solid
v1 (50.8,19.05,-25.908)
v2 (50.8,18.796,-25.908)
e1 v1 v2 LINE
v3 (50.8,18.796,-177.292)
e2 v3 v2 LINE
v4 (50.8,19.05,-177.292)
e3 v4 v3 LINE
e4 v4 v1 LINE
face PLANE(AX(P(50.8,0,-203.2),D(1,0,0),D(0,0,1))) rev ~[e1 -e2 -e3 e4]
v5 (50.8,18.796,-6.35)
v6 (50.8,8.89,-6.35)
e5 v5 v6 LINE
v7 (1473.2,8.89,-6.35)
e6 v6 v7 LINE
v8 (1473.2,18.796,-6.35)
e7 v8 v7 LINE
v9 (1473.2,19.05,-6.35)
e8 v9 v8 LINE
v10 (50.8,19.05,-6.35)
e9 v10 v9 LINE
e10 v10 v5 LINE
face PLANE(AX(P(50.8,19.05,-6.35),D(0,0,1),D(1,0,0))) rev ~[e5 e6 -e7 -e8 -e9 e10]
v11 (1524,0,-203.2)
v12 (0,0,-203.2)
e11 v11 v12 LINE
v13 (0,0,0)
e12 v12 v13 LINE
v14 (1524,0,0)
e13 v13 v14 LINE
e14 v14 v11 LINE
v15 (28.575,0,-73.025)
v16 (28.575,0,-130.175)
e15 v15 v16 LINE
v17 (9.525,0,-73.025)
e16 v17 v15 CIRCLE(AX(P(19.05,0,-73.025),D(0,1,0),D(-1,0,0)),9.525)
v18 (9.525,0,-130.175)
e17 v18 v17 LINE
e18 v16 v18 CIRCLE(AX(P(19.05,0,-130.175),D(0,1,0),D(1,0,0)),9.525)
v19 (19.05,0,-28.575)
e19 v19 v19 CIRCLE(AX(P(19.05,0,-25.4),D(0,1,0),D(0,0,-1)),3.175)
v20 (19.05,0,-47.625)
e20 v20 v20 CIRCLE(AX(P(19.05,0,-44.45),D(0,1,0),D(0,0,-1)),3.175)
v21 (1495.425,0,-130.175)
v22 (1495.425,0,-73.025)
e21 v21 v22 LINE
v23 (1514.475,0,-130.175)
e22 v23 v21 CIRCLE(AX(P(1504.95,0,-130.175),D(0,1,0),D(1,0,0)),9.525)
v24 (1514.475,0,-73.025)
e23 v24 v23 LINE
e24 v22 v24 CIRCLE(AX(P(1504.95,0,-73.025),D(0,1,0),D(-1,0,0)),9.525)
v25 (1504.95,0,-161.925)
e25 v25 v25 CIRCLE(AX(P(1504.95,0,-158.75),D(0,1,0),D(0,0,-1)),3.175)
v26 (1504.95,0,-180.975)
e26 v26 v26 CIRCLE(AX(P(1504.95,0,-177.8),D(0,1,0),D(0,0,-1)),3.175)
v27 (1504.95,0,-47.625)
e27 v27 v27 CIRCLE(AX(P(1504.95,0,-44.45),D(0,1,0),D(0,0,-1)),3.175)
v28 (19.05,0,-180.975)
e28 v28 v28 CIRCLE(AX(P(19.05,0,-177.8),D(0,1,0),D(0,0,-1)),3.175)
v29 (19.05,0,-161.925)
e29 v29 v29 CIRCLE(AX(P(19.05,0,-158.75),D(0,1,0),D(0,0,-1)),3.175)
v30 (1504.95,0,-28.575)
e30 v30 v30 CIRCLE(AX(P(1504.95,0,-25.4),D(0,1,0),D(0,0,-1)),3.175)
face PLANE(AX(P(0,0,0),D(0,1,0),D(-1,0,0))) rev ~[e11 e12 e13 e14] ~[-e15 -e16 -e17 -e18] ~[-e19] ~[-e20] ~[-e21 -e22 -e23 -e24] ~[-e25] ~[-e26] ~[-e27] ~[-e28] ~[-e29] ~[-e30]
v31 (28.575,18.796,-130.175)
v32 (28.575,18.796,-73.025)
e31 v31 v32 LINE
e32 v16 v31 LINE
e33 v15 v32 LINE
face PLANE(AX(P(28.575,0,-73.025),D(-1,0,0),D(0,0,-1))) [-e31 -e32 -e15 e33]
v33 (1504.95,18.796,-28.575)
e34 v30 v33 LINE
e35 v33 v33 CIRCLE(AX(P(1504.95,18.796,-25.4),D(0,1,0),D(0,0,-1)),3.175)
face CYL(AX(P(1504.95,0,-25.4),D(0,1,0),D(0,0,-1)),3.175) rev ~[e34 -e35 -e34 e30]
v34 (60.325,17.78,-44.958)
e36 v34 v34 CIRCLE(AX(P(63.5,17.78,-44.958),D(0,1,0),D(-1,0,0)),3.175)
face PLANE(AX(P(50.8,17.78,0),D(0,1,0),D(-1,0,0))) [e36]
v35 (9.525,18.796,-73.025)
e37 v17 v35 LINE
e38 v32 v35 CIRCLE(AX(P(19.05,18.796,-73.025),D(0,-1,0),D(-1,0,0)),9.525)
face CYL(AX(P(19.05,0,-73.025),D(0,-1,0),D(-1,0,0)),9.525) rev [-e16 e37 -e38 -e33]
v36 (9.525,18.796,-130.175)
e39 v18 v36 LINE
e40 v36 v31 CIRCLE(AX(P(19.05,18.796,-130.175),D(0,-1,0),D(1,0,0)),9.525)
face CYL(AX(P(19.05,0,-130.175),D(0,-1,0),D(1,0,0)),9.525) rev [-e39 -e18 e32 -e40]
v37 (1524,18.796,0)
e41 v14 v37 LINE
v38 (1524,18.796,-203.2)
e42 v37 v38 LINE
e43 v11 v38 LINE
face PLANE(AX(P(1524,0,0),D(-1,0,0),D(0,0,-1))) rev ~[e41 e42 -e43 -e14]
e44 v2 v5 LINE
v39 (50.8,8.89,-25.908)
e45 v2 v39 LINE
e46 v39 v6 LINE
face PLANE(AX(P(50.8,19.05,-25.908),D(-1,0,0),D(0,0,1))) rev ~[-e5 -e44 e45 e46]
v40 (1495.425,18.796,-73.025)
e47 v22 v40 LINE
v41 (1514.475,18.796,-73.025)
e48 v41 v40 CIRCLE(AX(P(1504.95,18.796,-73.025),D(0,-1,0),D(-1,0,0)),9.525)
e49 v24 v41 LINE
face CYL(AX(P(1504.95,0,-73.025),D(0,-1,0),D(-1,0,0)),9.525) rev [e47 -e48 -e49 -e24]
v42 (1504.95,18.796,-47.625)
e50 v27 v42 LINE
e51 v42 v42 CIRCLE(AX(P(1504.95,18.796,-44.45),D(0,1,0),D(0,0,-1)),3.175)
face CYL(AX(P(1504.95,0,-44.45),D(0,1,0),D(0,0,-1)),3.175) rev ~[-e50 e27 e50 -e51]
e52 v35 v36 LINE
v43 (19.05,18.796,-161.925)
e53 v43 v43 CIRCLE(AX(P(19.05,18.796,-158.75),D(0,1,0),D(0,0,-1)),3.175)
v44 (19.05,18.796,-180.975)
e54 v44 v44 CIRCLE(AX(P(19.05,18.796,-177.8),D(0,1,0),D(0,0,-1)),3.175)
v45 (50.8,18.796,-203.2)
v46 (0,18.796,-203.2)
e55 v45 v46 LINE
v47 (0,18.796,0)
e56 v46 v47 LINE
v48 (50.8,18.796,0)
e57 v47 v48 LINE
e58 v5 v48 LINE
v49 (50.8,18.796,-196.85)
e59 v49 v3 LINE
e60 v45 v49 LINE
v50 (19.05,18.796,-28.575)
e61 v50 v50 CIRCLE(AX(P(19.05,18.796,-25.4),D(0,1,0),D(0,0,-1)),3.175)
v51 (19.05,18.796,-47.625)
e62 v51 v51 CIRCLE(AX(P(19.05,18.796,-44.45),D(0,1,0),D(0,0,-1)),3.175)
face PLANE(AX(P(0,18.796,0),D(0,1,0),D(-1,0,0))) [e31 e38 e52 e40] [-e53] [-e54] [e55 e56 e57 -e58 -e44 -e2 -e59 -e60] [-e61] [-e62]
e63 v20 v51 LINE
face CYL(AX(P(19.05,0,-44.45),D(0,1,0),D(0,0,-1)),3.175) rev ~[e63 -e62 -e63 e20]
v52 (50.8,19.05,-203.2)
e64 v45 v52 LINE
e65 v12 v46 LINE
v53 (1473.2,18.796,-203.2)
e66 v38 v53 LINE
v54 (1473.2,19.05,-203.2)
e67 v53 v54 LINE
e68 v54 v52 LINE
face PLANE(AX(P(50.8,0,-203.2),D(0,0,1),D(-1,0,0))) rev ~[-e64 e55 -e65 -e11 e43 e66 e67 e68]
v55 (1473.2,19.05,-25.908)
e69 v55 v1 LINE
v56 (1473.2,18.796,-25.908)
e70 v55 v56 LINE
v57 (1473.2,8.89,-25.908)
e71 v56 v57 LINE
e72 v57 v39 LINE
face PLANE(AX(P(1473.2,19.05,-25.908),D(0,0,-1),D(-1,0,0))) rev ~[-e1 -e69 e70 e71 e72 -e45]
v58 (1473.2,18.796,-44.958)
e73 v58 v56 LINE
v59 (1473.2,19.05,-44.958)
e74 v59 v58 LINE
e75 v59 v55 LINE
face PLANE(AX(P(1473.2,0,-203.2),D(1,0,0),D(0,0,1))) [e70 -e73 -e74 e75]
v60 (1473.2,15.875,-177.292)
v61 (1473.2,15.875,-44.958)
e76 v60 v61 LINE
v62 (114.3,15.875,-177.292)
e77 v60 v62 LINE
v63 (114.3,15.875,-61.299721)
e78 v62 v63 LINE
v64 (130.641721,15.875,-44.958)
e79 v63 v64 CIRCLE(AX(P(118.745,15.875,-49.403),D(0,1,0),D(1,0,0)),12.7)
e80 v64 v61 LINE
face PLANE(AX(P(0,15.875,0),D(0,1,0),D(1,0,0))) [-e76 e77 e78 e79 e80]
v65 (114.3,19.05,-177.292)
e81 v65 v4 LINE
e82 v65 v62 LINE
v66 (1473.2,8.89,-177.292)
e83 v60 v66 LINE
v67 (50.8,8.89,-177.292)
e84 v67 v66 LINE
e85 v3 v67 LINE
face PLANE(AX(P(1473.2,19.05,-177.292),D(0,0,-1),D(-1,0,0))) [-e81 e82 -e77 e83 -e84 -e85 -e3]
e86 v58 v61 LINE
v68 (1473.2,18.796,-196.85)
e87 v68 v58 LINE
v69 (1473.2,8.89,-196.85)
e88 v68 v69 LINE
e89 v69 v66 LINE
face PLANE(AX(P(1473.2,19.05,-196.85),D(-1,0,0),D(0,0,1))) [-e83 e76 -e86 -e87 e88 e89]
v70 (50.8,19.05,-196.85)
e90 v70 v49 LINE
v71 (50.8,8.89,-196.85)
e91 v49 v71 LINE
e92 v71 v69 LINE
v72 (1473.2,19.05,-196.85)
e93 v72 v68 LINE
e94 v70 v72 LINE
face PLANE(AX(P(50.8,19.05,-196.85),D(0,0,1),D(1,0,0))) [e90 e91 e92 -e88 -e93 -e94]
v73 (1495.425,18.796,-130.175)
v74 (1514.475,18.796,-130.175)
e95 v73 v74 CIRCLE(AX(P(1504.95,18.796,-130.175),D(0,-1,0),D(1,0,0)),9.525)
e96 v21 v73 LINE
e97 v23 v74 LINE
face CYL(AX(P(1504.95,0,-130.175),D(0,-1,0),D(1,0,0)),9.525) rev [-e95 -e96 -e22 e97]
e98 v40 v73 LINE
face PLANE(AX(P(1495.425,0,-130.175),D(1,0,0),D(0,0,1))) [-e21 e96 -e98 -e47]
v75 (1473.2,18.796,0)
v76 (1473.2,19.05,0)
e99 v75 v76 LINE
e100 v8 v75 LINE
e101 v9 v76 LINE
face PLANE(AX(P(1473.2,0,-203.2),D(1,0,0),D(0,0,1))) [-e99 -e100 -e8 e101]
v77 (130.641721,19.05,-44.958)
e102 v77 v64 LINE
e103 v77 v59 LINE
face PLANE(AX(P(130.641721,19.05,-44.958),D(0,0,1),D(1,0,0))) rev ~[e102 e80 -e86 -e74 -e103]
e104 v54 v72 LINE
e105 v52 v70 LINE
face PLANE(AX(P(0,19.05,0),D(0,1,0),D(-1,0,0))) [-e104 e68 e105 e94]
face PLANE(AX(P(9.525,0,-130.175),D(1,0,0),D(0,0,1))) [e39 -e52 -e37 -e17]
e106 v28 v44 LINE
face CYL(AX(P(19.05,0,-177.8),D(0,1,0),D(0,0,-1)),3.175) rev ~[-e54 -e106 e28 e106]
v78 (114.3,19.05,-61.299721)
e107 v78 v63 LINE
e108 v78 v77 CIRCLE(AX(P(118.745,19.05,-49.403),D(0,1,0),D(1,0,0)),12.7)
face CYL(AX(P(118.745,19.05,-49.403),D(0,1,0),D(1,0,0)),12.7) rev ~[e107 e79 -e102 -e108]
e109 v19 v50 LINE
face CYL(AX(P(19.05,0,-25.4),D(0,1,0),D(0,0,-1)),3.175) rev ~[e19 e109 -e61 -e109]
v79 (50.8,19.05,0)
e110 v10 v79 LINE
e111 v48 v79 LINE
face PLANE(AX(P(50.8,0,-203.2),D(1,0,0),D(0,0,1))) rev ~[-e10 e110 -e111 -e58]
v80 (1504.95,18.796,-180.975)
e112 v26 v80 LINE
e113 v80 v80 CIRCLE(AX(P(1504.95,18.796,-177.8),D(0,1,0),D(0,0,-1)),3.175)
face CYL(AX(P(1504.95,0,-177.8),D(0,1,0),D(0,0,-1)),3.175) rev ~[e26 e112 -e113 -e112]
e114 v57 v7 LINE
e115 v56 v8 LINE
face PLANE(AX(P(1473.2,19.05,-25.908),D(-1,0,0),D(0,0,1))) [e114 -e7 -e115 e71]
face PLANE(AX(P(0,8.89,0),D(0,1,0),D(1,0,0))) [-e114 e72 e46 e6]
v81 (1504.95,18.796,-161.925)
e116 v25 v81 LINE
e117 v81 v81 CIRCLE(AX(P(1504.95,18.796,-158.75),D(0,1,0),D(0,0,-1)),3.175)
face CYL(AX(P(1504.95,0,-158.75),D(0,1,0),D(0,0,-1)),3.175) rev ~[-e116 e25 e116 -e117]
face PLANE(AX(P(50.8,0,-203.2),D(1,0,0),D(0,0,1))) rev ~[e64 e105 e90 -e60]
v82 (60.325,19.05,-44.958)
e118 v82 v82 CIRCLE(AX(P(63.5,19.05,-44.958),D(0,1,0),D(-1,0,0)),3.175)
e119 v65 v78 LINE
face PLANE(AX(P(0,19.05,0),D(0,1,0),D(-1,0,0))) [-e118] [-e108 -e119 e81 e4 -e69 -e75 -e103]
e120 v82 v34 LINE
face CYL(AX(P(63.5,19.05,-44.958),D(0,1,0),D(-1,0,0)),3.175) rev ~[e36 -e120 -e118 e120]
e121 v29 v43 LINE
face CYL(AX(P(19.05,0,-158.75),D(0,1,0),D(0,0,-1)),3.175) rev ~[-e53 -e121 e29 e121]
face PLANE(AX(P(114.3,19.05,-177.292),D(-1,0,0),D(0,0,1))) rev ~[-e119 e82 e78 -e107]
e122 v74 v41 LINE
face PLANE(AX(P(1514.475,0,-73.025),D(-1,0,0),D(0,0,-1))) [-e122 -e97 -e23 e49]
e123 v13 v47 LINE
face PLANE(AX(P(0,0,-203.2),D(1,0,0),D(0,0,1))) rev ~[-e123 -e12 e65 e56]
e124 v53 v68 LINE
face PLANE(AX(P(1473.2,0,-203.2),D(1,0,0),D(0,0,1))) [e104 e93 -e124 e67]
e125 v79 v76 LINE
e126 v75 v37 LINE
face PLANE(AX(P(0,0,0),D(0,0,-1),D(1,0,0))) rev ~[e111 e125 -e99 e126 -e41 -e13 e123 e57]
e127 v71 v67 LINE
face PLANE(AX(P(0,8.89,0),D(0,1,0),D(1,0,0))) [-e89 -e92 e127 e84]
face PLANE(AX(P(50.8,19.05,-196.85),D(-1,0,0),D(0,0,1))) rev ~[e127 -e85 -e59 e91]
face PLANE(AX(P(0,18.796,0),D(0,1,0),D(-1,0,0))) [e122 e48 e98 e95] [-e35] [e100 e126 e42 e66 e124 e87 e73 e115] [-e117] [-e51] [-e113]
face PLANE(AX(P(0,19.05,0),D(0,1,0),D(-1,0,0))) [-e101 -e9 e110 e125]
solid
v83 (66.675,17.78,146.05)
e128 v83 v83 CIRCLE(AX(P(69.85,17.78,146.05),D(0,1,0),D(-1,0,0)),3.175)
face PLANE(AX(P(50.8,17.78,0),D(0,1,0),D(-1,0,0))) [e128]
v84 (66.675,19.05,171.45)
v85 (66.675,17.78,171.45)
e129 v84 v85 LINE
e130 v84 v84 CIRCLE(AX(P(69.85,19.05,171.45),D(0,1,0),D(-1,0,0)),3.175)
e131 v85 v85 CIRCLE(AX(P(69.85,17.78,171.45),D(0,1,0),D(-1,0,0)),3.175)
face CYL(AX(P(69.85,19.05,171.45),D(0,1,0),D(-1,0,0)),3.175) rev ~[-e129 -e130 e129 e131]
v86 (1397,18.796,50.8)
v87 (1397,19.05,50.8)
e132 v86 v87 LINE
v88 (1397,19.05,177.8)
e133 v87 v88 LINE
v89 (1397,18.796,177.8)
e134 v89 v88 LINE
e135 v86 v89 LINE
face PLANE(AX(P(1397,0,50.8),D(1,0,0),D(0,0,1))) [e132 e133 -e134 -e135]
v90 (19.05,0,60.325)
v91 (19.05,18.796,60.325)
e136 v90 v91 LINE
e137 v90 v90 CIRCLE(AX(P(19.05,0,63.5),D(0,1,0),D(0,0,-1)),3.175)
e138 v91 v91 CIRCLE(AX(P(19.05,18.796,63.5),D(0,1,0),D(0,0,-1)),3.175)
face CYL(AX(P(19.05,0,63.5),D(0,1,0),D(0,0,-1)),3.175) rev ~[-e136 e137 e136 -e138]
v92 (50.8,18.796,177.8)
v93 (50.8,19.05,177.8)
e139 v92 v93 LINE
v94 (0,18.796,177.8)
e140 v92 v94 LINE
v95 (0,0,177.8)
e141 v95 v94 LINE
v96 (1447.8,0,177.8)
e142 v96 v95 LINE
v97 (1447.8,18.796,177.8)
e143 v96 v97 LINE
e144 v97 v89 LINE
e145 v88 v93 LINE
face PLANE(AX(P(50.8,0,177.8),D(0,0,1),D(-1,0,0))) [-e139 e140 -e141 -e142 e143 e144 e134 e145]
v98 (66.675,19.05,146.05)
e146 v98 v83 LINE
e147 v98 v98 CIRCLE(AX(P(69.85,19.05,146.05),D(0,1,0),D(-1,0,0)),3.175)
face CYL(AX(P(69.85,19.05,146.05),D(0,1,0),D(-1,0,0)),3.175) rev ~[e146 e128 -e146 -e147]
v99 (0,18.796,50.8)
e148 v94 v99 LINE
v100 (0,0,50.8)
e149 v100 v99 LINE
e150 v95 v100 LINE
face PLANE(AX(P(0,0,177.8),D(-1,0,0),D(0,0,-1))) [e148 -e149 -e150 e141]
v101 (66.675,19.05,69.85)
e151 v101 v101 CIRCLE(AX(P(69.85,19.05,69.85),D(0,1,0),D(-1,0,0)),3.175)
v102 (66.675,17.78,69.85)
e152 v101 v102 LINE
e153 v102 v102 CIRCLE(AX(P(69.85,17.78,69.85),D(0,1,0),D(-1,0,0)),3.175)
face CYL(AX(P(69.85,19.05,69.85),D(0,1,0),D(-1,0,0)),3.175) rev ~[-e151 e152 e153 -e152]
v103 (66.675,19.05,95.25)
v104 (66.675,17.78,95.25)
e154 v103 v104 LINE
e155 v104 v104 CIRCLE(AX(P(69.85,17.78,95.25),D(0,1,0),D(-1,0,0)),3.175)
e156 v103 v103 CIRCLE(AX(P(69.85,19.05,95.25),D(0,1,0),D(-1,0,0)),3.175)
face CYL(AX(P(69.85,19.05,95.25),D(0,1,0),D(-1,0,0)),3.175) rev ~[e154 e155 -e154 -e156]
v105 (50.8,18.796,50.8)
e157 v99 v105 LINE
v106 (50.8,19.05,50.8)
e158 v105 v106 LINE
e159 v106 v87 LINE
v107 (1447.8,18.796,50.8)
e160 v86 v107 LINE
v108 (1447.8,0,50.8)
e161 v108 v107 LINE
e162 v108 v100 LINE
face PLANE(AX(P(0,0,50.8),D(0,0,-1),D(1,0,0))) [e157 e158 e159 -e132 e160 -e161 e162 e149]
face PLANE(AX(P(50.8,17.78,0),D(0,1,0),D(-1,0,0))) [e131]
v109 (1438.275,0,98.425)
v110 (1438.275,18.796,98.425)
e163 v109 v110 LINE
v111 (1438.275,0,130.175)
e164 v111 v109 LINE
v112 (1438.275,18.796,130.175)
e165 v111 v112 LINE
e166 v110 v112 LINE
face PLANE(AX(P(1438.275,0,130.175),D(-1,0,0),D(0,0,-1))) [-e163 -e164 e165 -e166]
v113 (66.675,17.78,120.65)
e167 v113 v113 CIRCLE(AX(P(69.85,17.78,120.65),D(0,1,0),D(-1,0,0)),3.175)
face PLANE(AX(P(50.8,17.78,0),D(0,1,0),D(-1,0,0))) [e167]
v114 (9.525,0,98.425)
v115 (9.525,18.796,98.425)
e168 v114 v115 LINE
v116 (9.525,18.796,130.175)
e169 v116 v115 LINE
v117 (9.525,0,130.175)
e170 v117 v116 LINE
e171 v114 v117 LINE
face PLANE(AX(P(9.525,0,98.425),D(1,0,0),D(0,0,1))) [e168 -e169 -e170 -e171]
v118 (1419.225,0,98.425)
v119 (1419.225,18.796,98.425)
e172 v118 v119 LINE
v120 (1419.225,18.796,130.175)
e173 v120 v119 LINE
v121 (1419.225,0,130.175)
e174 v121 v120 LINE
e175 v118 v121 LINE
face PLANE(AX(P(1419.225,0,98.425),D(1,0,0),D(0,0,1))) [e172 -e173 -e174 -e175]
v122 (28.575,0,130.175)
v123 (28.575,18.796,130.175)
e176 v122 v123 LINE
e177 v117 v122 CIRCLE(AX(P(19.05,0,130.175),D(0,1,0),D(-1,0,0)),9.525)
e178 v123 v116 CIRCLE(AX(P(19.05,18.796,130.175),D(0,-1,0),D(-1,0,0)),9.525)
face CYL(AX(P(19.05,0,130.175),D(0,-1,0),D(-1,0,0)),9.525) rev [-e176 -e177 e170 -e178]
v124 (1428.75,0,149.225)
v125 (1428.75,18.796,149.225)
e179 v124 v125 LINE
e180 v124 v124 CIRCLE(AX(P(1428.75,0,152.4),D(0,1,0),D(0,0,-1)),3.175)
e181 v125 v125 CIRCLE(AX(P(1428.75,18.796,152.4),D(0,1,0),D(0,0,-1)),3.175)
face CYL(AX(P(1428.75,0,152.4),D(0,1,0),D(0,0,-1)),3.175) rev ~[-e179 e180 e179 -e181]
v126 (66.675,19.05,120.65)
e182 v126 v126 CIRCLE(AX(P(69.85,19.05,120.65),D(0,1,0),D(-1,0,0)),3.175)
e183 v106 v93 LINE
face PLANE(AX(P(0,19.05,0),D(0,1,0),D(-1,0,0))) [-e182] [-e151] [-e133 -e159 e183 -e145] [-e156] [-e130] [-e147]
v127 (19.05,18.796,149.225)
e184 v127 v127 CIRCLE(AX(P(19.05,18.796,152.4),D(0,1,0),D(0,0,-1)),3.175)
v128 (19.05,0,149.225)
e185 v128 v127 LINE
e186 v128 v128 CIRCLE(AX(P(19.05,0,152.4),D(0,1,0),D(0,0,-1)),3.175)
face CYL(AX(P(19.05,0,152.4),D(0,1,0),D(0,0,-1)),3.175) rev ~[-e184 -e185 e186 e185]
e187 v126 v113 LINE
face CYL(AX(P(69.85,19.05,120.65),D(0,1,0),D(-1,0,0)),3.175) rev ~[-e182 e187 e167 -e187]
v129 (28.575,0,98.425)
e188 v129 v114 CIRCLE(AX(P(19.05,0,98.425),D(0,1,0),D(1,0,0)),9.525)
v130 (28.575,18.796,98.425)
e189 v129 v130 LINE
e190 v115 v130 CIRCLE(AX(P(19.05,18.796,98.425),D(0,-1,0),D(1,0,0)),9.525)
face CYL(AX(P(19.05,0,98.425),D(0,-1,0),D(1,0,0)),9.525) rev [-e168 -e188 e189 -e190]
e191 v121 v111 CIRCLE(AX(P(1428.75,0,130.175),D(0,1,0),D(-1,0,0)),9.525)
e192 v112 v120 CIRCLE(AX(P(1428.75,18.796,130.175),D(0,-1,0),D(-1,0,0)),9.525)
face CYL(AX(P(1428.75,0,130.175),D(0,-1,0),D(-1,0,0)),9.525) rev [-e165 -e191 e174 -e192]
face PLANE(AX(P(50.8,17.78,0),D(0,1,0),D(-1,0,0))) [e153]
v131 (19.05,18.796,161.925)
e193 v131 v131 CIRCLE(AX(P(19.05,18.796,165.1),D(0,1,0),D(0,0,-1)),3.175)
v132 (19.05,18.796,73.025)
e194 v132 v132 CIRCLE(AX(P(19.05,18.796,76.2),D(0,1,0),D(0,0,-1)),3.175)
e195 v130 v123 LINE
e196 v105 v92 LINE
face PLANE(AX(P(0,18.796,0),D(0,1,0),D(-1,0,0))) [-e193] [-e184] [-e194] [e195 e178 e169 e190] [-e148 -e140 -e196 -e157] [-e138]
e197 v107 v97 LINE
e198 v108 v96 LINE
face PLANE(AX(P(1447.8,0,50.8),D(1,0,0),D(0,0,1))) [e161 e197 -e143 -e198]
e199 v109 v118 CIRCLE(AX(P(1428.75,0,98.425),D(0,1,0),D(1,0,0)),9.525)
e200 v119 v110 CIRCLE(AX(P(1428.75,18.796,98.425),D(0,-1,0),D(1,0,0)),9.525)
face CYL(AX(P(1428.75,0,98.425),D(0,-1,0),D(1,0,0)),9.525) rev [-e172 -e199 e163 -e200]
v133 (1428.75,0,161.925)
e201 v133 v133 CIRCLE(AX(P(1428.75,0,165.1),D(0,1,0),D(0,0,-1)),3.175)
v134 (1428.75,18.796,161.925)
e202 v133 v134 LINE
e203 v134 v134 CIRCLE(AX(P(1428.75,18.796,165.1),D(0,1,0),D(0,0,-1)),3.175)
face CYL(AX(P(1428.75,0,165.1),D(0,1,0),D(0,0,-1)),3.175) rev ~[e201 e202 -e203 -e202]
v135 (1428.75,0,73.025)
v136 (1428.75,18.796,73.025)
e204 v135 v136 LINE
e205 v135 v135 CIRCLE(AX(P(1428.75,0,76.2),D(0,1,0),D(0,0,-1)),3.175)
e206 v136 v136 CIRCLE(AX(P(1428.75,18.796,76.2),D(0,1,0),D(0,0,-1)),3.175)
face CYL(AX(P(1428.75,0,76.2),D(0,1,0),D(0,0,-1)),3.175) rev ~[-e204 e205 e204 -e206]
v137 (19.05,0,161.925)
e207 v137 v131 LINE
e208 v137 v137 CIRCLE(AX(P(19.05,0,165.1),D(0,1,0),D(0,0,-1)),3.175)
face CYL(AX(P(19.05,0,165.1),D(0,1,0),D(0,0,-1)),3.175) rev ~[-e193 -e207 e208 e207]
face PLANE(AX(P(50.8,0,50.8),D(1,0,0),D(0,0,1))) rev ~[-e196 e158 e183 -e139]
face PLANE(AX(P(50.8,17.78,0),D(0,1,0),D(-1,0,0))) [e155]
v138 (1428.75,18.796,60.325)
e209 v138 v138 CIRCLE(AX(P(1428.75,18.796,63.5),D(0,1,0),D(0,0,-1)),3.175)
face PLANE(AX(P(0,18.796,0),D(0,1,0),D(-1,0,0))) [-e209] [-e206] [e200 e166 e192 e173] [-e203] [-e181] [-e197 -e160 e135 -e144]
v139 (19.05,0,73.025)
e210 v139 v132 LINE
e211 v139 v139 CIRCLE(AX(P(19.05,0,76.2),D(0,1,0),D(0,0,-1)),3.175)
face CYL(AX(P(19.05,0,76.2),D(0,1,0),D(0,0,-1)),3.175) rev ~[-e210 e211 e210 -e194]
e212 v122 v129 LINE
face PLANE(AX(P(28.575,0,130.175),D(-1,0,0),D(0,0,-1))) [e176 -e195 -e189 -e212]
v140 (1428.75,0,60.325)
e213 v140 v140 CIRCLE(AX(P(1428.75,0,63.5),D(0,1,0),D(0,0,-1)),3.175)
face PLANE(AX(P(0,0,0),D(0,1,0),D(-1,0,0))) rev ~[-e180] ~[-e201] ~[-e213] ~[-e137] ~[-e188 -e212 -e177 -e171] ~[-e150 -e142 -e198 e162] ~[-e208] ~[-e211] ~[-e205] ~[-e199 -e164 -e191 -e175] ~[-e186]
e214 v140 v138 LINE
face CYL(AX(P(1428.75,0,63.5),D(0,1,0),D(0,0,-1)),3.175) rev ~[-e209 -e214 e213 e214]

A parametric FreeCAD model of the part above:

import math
import FreeCAD as App
import Part
import Sketcher

V = App.Vector
Q = App.Units.Quantity


def add_polygon(sketch, points):
    """Adds a closed chain of lines whose ends are joined by coincident constraints."""
    first, n = sketch.GeometryCount, len(points)
    for a, b in zip(points, points[1:] + points[:1]):
        sketch.addGeometry(Part.LineSegment(App.Vector(*a, 0), App.Vector(*b, 0)), False)
    for i in range(n):
        sketch.addConstraint(Sketcher.Constraint("Coincident", first + i, 2, first + (i + 1) % n, 1))

doc = App.newDocument("Part")
params = doc.addObject("Spreadsheet::Sheet", "Params")
for row, (alias, value) in enumerate([
    ("sketch1_width", "2 in"),
    ("sketch1_height", "8 in"),
    ("sketch1_height2", "5 in"),
    ("pad1_length", "0.74 in"),
    ("sketch2_height", "8 in"),
    ("sketch2_height2", "5 in"),
    ("sketch2_width", "56 in"),
    ("sketch2_width2", "53 in"),
    ("pad2_length", "0.75 in"),
    ("sketch3_radius", "0.375 in"),
    ("sketch3_height", "2.25 in"),
    ("sketch4_diameter", "0.25 in"),
    ("hole_diameter", "0.25 in"),
    ("sketch5_radius", "0.5 in"),
    ("sketch5_width", "53.5 in"),
    ("sketch5_height", "0.175 in"),
    ("sketch5_height2", "5.21 in"),
    ("pocket2_length", "0.125 in"),
    ("sketch6_height", "0.77 in"),
    ("sketch6_width", "56 in"),
    ("pocket3_length", "0.4 in"),
    ("sketch7_diameter", "0.25 in"),
    ("pocket4_length", "0.05 in"),
], start=1):
    params.set(f"A{row}", alias)
    params.set(f"B{row}", "=" + value)
    params.setAlias(f"B{row}", alias)

body = doc.addObject("PartDesign::Body", "Body")
body.AllowCompound = True

sketch1 = body.newObject("Sketcher::SketchObject", "Sketch")
sketch1.AttachmentSupport = (doc.getObject("XZ_Plane"), [""])
sketch1.MapMode = "FlatFace"
add_polygon(sketch1, [(0, -203), (0, 0), (51, 0), (51, -203)])
add_polygon(sketch1, [(1473, -203), (1473, 0), (1524, 0), (1524, -203)])
add_polygon(sketch1, [(51, 51), (0, 51), (0, 178), (51, 178)])
add_polygon(sketch1, [(1448, 51), (1397, 51), (1397, 178), (1448, 178)])
sketch1.addConstraint(Sketcher.Constraint("Vertical", 0))
sketch1.addConstraint(Sketcher.Constraint("Horizontal", 1))
sketch1.addConstraint(Sketcher.Constraint("Vertical", 2))
sketch1.addConstraint(Sketcher.Constraint("Horizontal", 3))
sketch1.addConstraint(Sketcher.Constraint("Vertical", 4))
sketch1.addConstraint(Sketcher.Constraint("Horizontal", 5))
sketch1.addConstraint(Sketcher.Constraint("Vertical", 6))
sketch1.addConstraint(Sketcher.Constraint("Horizontal", 7))
sketch1.addConstraint(Sketcher.Constraint("Horizontal", 8))
sketch1.addConstraint(Sketcher.Constraint("Vertical", 9))
sketch1.addConstraint(Sketcher.Constraint("Horizontal", 10))
sketch1.addConstraint(Sketcher.Constraint("Vertical", 11))
sketch1.addConstraint(Sketcher.Constraint("Horizontal", 12))
sketch1.addConstraint(Sketcher.Constraint("Vertical", 13))
sketch1.addConstraint(Sketcher.Constraint("Horizontal", 14))
sketch1.addConstraint(Sketcher.Constraint("Vertical", 15))
sketch1.addConstraint(Sketcher.Constraint("Coincident", 0, 2, -1, 1))
sketch1.addConstraint(Sketcher.Constraint("PointOnObject", 4, 2, -1))
sketch1.addConstraint(Sketcher.Constraint("PointOnObject", 8, 2, -2))
sketch1.addConstraint(Sketcher.Constraint("Horizontal", 3, 2, 6, 2))
sketch1.addConstraint(Sketcher.Constraint("Horizontal", 11, 2, 12, 2))
sketch1.addConstraint(Sketcher.Constraint("Horizontal", 10, 2, 13, 2))
sketch1.addConstraint(Sketcher.Constraint("Vertical", 2, 2, 10, 2))
sketch1.addConstraint(Sketcher.Constraint("Equal", 3, 5))
sketch1.addConstraint(Sketcher.Constraint("Equal", 10, 12))
sketch1.addConstraint(Sketcher.Constraint("DistanceX", 1, 1, 1, 2, Q("2 in")))
sketch1.addConstraint(Sketcher.Constraint("DistanceY", 0, 1, 0, 2, Q("8 in")))
sketch1.addConstraint(Sketcher.Constraint("DistanceY", 9, 1, 9, 2, Q("5 in")))
sketch1.addConstraint(Sketcher.Constraint("DistanceX", -1, 1, 5, 2, Q("60 in")))
sketch1.addConstraint(Sketcher.Constraint("DistanceY", -1, 1, 8, 2, Q("2 in")))
sketch1.addConstraint(Sketcher.Constraint("DistanceX", -1, 1, 14, 2, Q("57 in")))
sketch1.setExpression("Constraints[41]", "Params.sketch1_width")
sketch1.setExpression("Constraints[42]", "Params.sketch1_height")
sketch1.setExpression("Constraints[43]", "Params.sketch1_height2")
pad1 = body.newObject("PartDesign::Pad", "Pad")
pad1.Profile = sketch1
pad1.setExpression("Length", "Params.pad1_length")
pad1.Reversed = True

sketch2 = body.newObject("Sketcher::SketchObject", "Sketch001")
sketch2.AttachmentSupport = (doc.getObject("XZ_Plane"), [""])
sketch2.MapMode = "FlatFace"
add_polygon(sketch2, [(51, -203), (51, 0), (1473, 0), (1473, -203)])
add_polygon(sketch2, [(1397, 51), (51, 51), (51, 178), (1397, 178)])
sketch2.addConstraint(Sketcher.Constraint("Vertical", 0))
sketch2.addConstraint(Sketcher.Constraint("Horizontal", 1))
sketch2.addConstraint(Sketcher.Constraint("Vertical", 2))
sketch2.addConstraint(Sketcher.Constraint("Horizontal", 3))
sketch2.addConstraint(Sketcher.Constraint("Horizontal", 4))
sketch2.addConstraint(Sketcher.Constraint("Vertical", 5))
sketch2.addConstraint(Sketcher.Constraint("Horizontal", 6))
sketch2.addConstraint(Sketcher.Constraint("Vertical", 7))
sketch2.addConstraint(Sketcher.Constraint("PointOnObject", 0, 2, -1))
sketch2.addConstraint(Sketcher.Constraint("Vertical", 3, 2, 4, 2))
sketch2.addConstraint(Sketcher.Constraint("DistanceY", 0, 1, 0, 2, Q("8 in")))
sketch2.addConstraint(Sketcher.Constraint("DistanceY", 5, 1, 5, 2, Q("5 in")))
sketch2.addConstraint(Sketcher.Constraint("DistanceX", -1, 1, 0, 2, Q("2 in")))
sketch2.addConstraint(Sketcher.Constraint("DistanceY", -1, 1, 4, 2, Q("2 in")))
sketch2.addConstraint(Sketcher.Constraint("DistanceX", 1, 1, 1, 2, Q("56 in")))
sketch2.addConstraint(Sketcher.Constraint("DistanceX", 4, 2, 4, 1, Q("53 in")))
sketch2.setExpression("Constraints[18]", "Params.sketch2_height")
sketch2.setExpression("Constraints[19]", "Params.sketch2_height2")
sketch2.setExpression("Constraints[22]", "Params.sketch2_width")
sketch2.setExpression("Constraints[23]", "Params.sketch2_width2")
pad2 = body.newObject("PartDesign::Pad", "Pad001")
pad2.Profile = sketch2
pad2.setExpression("Length", "Params.pad2_length")
pad2.Reversed = True

sketch3 = body.newObject("Sketcher::SketchObject", "Sketch002")
sketch3.AttachmentSupport = (doc.getObject("XZ_Plane"), [""])
sketch3.MapMode = "FlatFace"
sketch3.addGeometry(Part.ArcOfCircle(Part.Circle(V(19, -130, 0), V(0, 0, 1), 10), math.radians(180), math.radians(360)), False)
sketch3.addGeometry(Part.LineSegment(V(10, -130, 0), V(10, -73, 0)), False)
sketch3.addGeometry(Part.ArcOfCircle(Part.Circle(V(19, -73, 0), V(0, 0, 1), 10), math.radians(0), math.radians(180)), False)
sketch3.addGeometry(Part.LineSegment(V(29, -73, 0), V(29, -130, 0)), False)
sketch3.addGeometry(Part.ArcOfCircle(Part.Circle(V(1505, -130, 0), V(0, 0, 1), 10), math.radians(180), math.radians(360)), False)
sketch3.addGeometry(Part.LineSegment(V(1495, -130, 0), V(1495, -73, 0)), False)
sketch3.addGeometry(Part.ArcOfCircle(Part.Circle(V(1505, -73, 0), V(0, 0, 1), 10), math.radians(0), math.radians(180)), False)
sketch3.addGeometry(Part.LineSegment(V(1514, -73, 0), V(1514, -130, 0)), False)
sketch3.addGeometry(Part.ArcOfCircle(Part.Circle(V(19, 130, 0), V(0, 0, 1), 10), math.radians(0), math.radians(180)), False)
sketch3.addGeometry(Part.LineSegment(V(29, 130, 0), V(29, 98, 0)), False)
sketch3.addGeometry(Part.ArcOfCircle(Part.Circle(V(19, 98, 0), V(0, 0, 1), 10), math.radians(180), math.radians(360)), False)
sketch3.addGeometry(Part.LineSegment(V(10, 98, 0), V(10, 130, 0)), False)
sketch3.addGeometry(Part.ArcOfCircle(Part.Circle(V(1429, 130, 0), V(0, 0, 1), 10), math.radians(0), math.radians(180)), False)
sketch3.addGeometry(Part.LineSegment(V(1438, 130, 0), V(1438, 98, 0)), False)
sketch3.addGeometry(Part.ArcOfCircle(Part.Circle(V(1429, 98, 0), V(0, 0, 1), 10), math.radians(180), math.radians(360)), False)
sketch3.addGeometry(Part.LineSegment(V(1419, 98, 0), V(1419, 130, 0)), False)
sketch3.addConstraint(Sketcher.Constraint("Tangent", 0, 1, 1, 1))
sketch3.addConstraint(Sketcher.Constraint("Tangent", 1, 2, 2, 2))
sketch3.addConstraint(Sketcher.Constraint("Tangent", 2, 1, 3, 1))
sketch3.addConstraint(Sketcher.Constraint("Tangent", 3, 2, 0, 2))
sketch3.addConstraint(Sketcher.Constraint("Tangent", 4, 1, 5, 1))
sketch3.addConstraint(Sketcher.Constraint("Tangent", 5, 2, 6, 2))
sketch3.addConstraint(Sketcher.Constraint("Tangent", 6, 1, 7, 1))
sketch3.addConstraint(Sketcher.Constraint("Tangent", 7, 2, 4, 2))
sketch3.addConstraint(Sketcher.Constraint("Tangent", 8, 1, 9, 1))
sketch3.addConstraint(Sketcher.Constraint("Tangent", 9, 2, 10, 2))
sketch3.addConstraint(Sketcher.Constraint("Tangent", 10, 1, 11, 1))
sketch3.addConstraint(Sketcher.Constraint("Tangent", 11, 2, 8, 2))
sketch3.addConstraint(Sketcher.Constraint("Tangent", 12, 1, 13, 1))
sketch3.addConstraint(Sketcher.Constraint("Tangent", 13, 2, 14, 2))
sketch3.addConstraint(Sketcher.Constraint("Tangent", 14, 1, 15, 1))
sketch3.addConstraint(Sketcher.Constraint("Tangent", 15, 2, 12, 2))
sketch3.addConstraint(Sketcher.Constraint("Vertical", 1))
sketch3.addConstraint(Sketcher.Constraint("Vertical", 3))
sketch3.addConstraint(Sketcher.Constraint("Vertical", 5))
sketch3.addConstraint(Sketcher.Constraint("Vertical", 7))
sketch3.addConstraint(Sketcher.Constraint("Vertical", 9))
sketch3.addConstraint(Sketcher.Constraint("Vertical", 11))
sketch3.addConstraint(Sketcher.Constraint("Vertical", 13))
sketch3.addConstraint(Sketcher.Constraint("Vertical", 15))
sketch3.addConstraint(Sketcher.Constraint("Equal", 2, 4))
sketch3.addConstraint(Sketcher.Constraint("Equal", 6, 8))
sketch3.addConstraint(Sketcher.Constraint("Equal", 10, 12))
sketch3.addConstraint(Sketcher.Constraint("Symmetric", 0, 3, 8, 3, -1))
sketch3.addConstraint(Sketcher.Constraint("Horizontal", 0, 3, 4, 3))
sketch3.addConstraint(Sketcher.Constraint("Horizontal", 2, 3, 6, 3))
sketch3.addConstraint(Sketcher.Constraint("Horizontal", 8, 3, 12, 3))
sketch3.addConstraint(Sketcher.Constraint("Horizontal", 10, 3, 14, 3))
sketch3.addConstraint(Sketcher.Constraint("Radius", 0, Q("0.375 in")))
sketch3.addConstraint(Sketcher.Constraint("DistanceX", 12, 3, 6, 3, Q("3 in")))
sketch3.addConstraint(Sketcher.Constraint("DistanceX", -1, 1, 0, 3, Q("0.75 in")))
sketch3.addConstraint(Sketcher.Constraint("DistanceY", 2, 3, 8, 3, Q("8 in")))
sketch3.addConstraint(Sketcher.Constraint("DistanceY", 0, 3, 10, 3, Q("9 in")))
sketch3.addConstraint(Sketcher.Constraint("DistanceY", 1, 1, 1, 2, Q("2.25 in")))
sketch3.addConstraint(Sketcher.Constraint("DistanceX", 0, 3, 4, 3, Q("58.5 in")))
sketch3.setExpression("Constraints[32]", "Params.sketch3_radius")
sketch3.setExpression("Constraints[37]", "Params.sketch3_height")
pocket1 = body.newObject("PartDesign::Pocket", "Pocket")
pocket1.Profile = sketch3
pocket1.Type = "ThroughAll"

sketch4 = body.newObject("Sketcher::SketchObject", "Sketch003")
sketch4.AttachmentSupport = (doc.getObject("XZ_Plane"), [""])
sketch4.MapMode = "FlatFace"
sketch4.addGeometry(Part.Circle(V(19.1, 165.1, 0), V(0, 0, 1), 3.2), False)
sketch4.addGeometry(Part.Circle(V(19.1, 152.4, 0), V(0, 0, 1), 3.2), False)
sketch4.addGeometry(Part.Circle(V(19.1, 76.2, 0), V(0, 0, 1), 3.2), False)
sketch4.addGeometry(Part.Circle(V(19.1, 63.5, 0), V(0, 0, 1), 3.2), False)
sketch4.addGeometry(Part.Circle(V(19.1, -25.4, 0), V(0, 0, 1), 3.2), False)
sketch4.addGeometry(Part.Circle(V(19.1, -44.5, 0), V(0, 0, 1), 3.2), False)
sketch4.addGeometry(Part.Circle(V(19.1, -158.8, 0), V(0, 0, 1), 3.2), False)
sketch4.addGeometry(Part.Circle(V(19.1, -177.8, 0), V(0, 0, 1), 3.2), False)
sketch4.addGeometry(Part.Circle(V(1428.8, 165.1, 0), V(0, 0, 1), 3.2), False)
sketch4.addGeometry(Part.Circle(V(1428.8, 152.4, 0), V(0, 0, 1), 3.2), False)
sketch4.addGeometry(Part.Circle(V(1428.8, 76.2, 0), V(0, 0, 1), 3.2), False)
sketch4.addGeometry(Part.Circle(V(1428.8, 63.5, 0), V(0, 0, 1), 3.2), False)
sketch4.addGeometry(Part.Circle(V(1505, -25.4, 0), V(0, 0, 1), 3.2), False)
sketch4.addGeometry(Part.Circle(V(1505, -44.5, 0), V(0, 0, 1), 3.2), False)
sketch4.addGeometry(Part.Circle(V(1505, -158.8, 0), V(0, 0, 1), 3.2), False)
sketch4.addGeometry(Part.Circle(V(1505, -177.8, 0), V(0, 0, 1), 3.2), False)
sketch4.addConstraint(Sketcher.Constraint("Equal", 0, 1))
sketch4.addConstraint(Sketcher.Constraint("Equal", 1, 2))
sketch4.addConstraint(Sketcher.Constraint("Equal", 2, 3))
sketch4.addConstraint(Sketcher.Constraint("Equal", 3, 4))
sketch4.addConstraint(Sketcher.Constraint("Equal", 4, 5))
sketch4.addConstraint(Sketcher.Constraint("Equal", 5, 6))
sketch4.addConstraint(Sketcher.Constraint("Equal", 6, 7))
sketch4.addConstraint(Sketcher.Constraint("Equal", 7, 8))
sketch4.addConstraint(Sketcher.Constraint("Equal", 8, 9))
sketch4.addConstraint(Sketcher.Constraint("Equal", 9, 10))
sketch4.addConstraint(Sketcher.Constraint("Equal", 10, 11))
sketch4.addConstraint(Sketcher.Constraint("Equal", 11, 12))
sketch4.addConstraint(Sketcher.Constraint("Equal", 12, 13))
sketch4.addConstraint(Sketcher.Constraint("Equal", 13, 14))
sketch4.addConstraint(Sketcher.Constraint("Equal", 14, 15))
sketch4.addConstraint(Sketcher.Constraint("Horizontal", 0, 3, 8, 3))
sketch4.addConstraint(Sketcher.Constraint("Horizontal", 1, 3, 9, 3))
sketch4.addConstraint(Sketcher.Constraint("Horizontal", 2, 3, 10, 3))
sketch4.addConstraint(Sketcher.Constraint("Horizontal", 3, 3, 11, 3))
sketch4.addConstraint(Sketcher.Constraint("Horizontal", 4, 3, 12, 3))
sketch4.addConstraint(Sketcher.Constraint("Horizontal", 5, 3, 13, 3))
sketch4.addConstraint(Sketcher.Constraint("Horizontal", 6, 3, 14, 3))
sketch4.addConstraint(Sketcher.Constraint("Horizontal", 7, 3, 15, 3))
sketch4.addConstraint(Sketcher.Constraint("Vertical", 0, 3, 1, 3))
sketch4.addConstraint(Sketcher.Constraint("Vertical", 1, 3, 2, 3))
sketch4.addConstraint(Sketcher.Constraint("Vertical", 2, 3, 3, 3))
sketch4.addConstraint(Sketcher.Constraint("Vertical", 3, 3, 4, 3))
sketch4.addConstraint(Sketcher.Constraint("Vertical", 4, 3, 5, 3))
sketch4.addConstraint(Sketcher.Constraint("Vertical", 5, 3, 6, 3))
sketch4.addConstraint(Sketcher.Constraint("Vertical", 6, 3, 7, 3))
sketch4.addConstraint(Sketcher.Constraint("Vertical", 8, 3, 9, 3))
sketch4.addConstraint(Sketcher.Constraint("Vertical", 9, 3, 10, 3))
sketch4.addConstraint(Sketcher.Constraint("Vertical", 10, 3, 11, 3))
sketch4.addConstraint(Sketcher.Constraint("Vertical", 12, 3, 13, 3))
sketch4.addConstraint(Sketcher.Constraint("Vertical", 13, 3, 14, 3))
sketch4.addConstraint(Sketcher.Constraint("Vertical", 14, 3, 15, 3))
sketch4.addConstraint(Sketcher.Constraint("Diameter", 0, Q("0.25 in")))
sketch4.addConstraint(Sketcher.Constraint("DistanceY", -1, 1, 1, 3, Q("6 in")))
sketch4.addConstraint(Sketcher.Constraint("DistanceY", -1, 1, 2, 3, Q("3 in")))
sketch4.addConstraint(Sketcher.Constraint("DistanceY", 4, 3, -1, 1, Q("1 in")))
sketch4.addConstraint(Sketcher.Constraint("DistanceY", 7, 3, -1, 1, Q("7 in")))
sketch4.addConstraint(Sketcher.Constraint("DistanceY", 3, 3, 0, 3, Q("4 in")))
sketch4.addConstraint(Sketcher.Constraint("DistanceX", 11, 3, 12, 3, Q("3 in")))
sketch4.addConstraint(Sketcher.Constraint("DistanceY", -1, 1, 0, 3, Q("6.5 in")))
sketch4.addConstraint(Sketcher.Constraint("DistanceY", 6, 3, 5, 3, Q("4.5 in")))
sketch4.addConstraint(Sketcher.Constraint("DistanceX", 0, 3, 8, 3, Q("55.5 in")))
sketch4.addConstraint(Sketcher.Constraint("DistanceX", -1, 1, 0, 3, Q("0.75 in")))
sketch4.addConstraint(Sketcher.Constraint("DistanceY", 5, 3, -1, 1, Q("1.75 in")))
sketch4.setExpression("Constraints[36]", "Params.sketch4_diameter")
doc.recompute()
hole = body.newObject("PartDesign::Hole", "Hole")
hole.Profile = sketch4
hole.ThreadType = "None"
hole.setExpression("Diameter", "Params.hole_diameter")
hole.DepthType = "ThroughAll"

sketch5 = body.newObject("Sketcher::SketchObject", "Sketch004")
sketch5.AttachmentSupport = (doc.getObject("XZ_Plane"), [""])
sketch5.MapMode = "FlatFace"
sketch5.AttachmentOffset = App.Placement(V(0, 0, -0.75 * 25.4), App.Rotation())
sketch5.addGeometry(Part.LineSegment(V(1473, -45, 0), V(1473, -177, 0)), False)
sketch5.addGeometry(Part.LineSegment(V(1473, -177, 0), V(114, -177, 0)), False)
sketch5.addGeometry(Part.LineSegment(V(114, -177, 0), V(114, -61, 0)), False)
sketch5.addGeometry(Part.ArcOfCircle(Part.Circle(V(119, -49, 0), V(0, 0, 1), 13), math.radians(20), math.radians(250)), False)
sketch5.addGeometry(Part.LineSegment(V(131, -45, 0), V(1473, -45, 0)), False)
sketch5.addConstraint(Sketcher.Constraint("Coincident", 0, 2, 1, 1))
sketch5.addConstraint(Sketcher.Constraint("Coincident", 1, 2, 2, 1))
sketch5.addConstraint(Sketcher.Constraint("Coincident", 2, 2, 3, 2))
sketch5.addConstraint(Sketcher.Constraint("Coincident", 3, 1, 4, 1))
sketch5.addConstraint(Sketcher.Constraint("Coincident", 4, 2, 0, 1))
sketch5.addConstraint(Sketcher.Constraint("Vertical", 0))
sketch5.addConstraint(Sketcher.Constraint("Horizontal", 1))
sketch5.addConstraint(Sketcher.Constraint("Vertical", 2))
sketch5.addConstraint(Sketcher.Constraint("Horizontal", 4))
sketch5.addConstraint(Sketcher.Constraint("Radius", 3, Q("0.5 in")))
sketch5.addConstraint(Sketcher.Constraint("DistanceX", 1, 2, 1, 1, Q("53.5 in")))
sketch5.addConstraint(Sketcher.Constraint("DistanceX", -1, 1, 0, 2, Q("58 in")))
sketch5.addConstraint(Sketcher.Constraint("DistanceX", 1, 2, 3, 3, Q("0.175 in")))
sketch5.addConstraint(Sketcher.Constraint("DistanceY", 3, 3, 3, 1, Q("0.175 in")))
sketch5.addConstraint(Sketcher.Constraint("DistanceY", 0, 2, 0, 1, Q("5.21 in")))
sketch5.addConstraint(Sketcher.Constraint("DistanceY", 0, 2, -1, 1, Q("6.98 in")))
sketch5.setExpression("Constraints[9]", "Params.sketch5_radius")
sketch5.setExpression("Constraints[10]", "Params.sketch5_width")
sketch5.setExpression("Constraints[13]", "Params.sketch5_height")
sketch5.setExpression("Constraints[14]", "Params.sketch5_height2")
pocket2 = body.newObject("PartDesign::Pocket", "Pocket001")
pocket2.Profile = sketch5
pocket2.setExpression("Length", "Params.pocket2_length")
pocket2.Reversed = True

sketch6 = body.newObject("Sketcher::SketchObject", "Sketch005")
sketch6.AttachmentSupport = (doc.getObject("XZ_Plane"), [""])
sketch6.MapMode = "FlatFace"
sketch6.AttachmentOffset = App.Placement(V(0, 0, -0.75 * 25.4), App.Rotation())
add_polygon(sketch6, [(1473, -177), (1473, -197), (51, -197), (51, -177)])
add_polygon(sketch6, [(1473, -6), (1473, -26), (51, -26), (51, -6)])
sketch6.addConstraint(Sketcher.Constraint("Vertical", 0))
sketch6.addConstraint(Sketcher.Constraint("Horizontal", 1))
sketch6.addConstraint(Sketcher.Constraint("Vertical", 2))
sketch6.addConstraint(Sketcher.Constraint("Horizontal", 3))
sketch6.addConstraint(Sketcher.Constraint("Vertical", 4))
sketch6.addConstraint(Sketcher.Constraint("Horizontal", 5))
sketch6.addConstraint(Sketcher.Constraint("Vertical", 6))
sketch6.addConstraint(Sketcher.Constraint("Horizontal", 7))
sketch6.addConstraint(Sketcher.Constraint("Vertical", 3, 2, 4, 2))
sketch6.addConstraint(Sketcher.Constraint("Vertical", 2, 2, 5, 2))
sketch6.addConstraint(Sketcher.Constraint("Equal", 2, 4))
sketch6.addConstraint(Sketcher.Constraint("DistanceY", 0, 2, 0, 1, Q("0.77 in")))
sketch6.addConstraint(Sketcher.Constraint("DistanceX", 1, 2, 1, 1, Q("56 in")))
sketch6.addConstraint(Sketcher.Constraint("DistanceY", 6, 2, -1, 1, Q("0.25 in")))
sketch6.addConstraint(Sketcher.Constraint("DistanceX", -1, 1, 0, 2, Q("58 in")))
sketch6.addConstraint(Sketcher.Constraint("DistanceY", 1, 2, 6, 2, Q("7.5 in")))
sketch6.setExpression("Constraints[19]", "Params.sketch6_height")
sketch6.setExpression("Constraints[20]", "Params.sketch6_width")
pocket3 = body.newObject("PartDesign::Pocket", "Pocket002")
pocket3.Profile = sketch6
pocket3.setExpression("Length", "Params.pocket3_length")
pocket3.Reversed = True

sketch7 = body.newObject("Sketcher::SketchObject", "Sketch006")
sketch7.AttachmentSupport = (doc.getObject("XZ_Plane"), [""])
sketch7.MapMode = "FlatFace"
sketch7.AttachmentOffset = App.Placement(V(0, 0, -0.75 * 25.4), App.Rotation())
sketch7.addGeometry(Part.Circle(V(63.5, -45, 0), V(0, 0, 1), 3.2), False)
sketch7.addGeometry(Part.Circle(V(69.8, 171.4, 0), V(0, 0, 1), 3.2), False)
sketch7.addGeometry(Part.Circle(V(69.8, 146.1, 0), V(0, 0, 1), 3.2), False)
sketch7.addGeometry(Part.Circle(V(69.8, 120.7, 0), V(0, 0, 1), 3.2), False)
sketch7.addGeometry(Part.Circle(V(69.8, 95.2, 0), V(0, 0, 1), 3.2), False)
sketch7.addGeometry(Part.Circle(V(69.8, 69.8, 0), V(0, 0, 1), 3.2), False)
sketch7.addConstraint(Sketcher.Constraint("Equal", 0, 1))
sketch7.addConstraint(Sketcher.Constraint("Equal", 1, 2))
sketch7.addConstraint(Sketcher.Constraint("Equal", 2, 3))
sketch7.addConstraint(Sketcher.Constraint("Equal", 3, 4))
sketch7.addConstraint(Sketcher.Constraint("Equal", 4, 5))
sketch7.addConstraint(Sketcher.Constraint("Vertical", 1, 3, 2, 3))
sketch7.addConstraint(Sketcher.Constraint("Vertical", 2, 3, 3, 3))
sketch7.addConstraint(Sketcher.Constraint("Vertical", 3, 3, 4, 3))
sketch7.addConstraint(Sketcher.Constraint("Vertical", 4, 3, 5, 3))
sketch7.addConstraint(Sketcher.Constraint("Diameter", 0, Q("0.25 in")))
sketch7.addConstraint(Sketcher.Constraint("DistanceY", 2, 3, 1, 3, Q("1 in")))
sketch7.addConstraint(Sketcher.Constraint("DistanceY", 3, 3, 2, 3, Q("1 in")))
sketch7.addConstraint(Sketcher.Constraint("DistanceY", 4, 3, 3, 3, Q("1 in")))
sketch7.addConstraint(Sketcher.Constraint("DistanceY", 5, 3, 4, 3, Q("1 in")))
sketch7.addConstraint(Sketcher.Constraint("DistanceX", 0, 3, 1, 3, Q("0.25 in")))
sketch7.addConstraint(Sketcher.Constraint("DistanceX", -1, 1, 0, 3, Q("2.5 in")))
sketch7.addConstraint(Sketcher.Constraint("DistanceY", 0, 3, -1, 1, Q("1.77 in")))
sketch7.addConstraint(Sketcher.Constraint("DistanceY", -1, 1, 1, 3, Q("6.75 in")))
sketch7.setExpression("Constraints[9]", "Params.sketch7_diameter")
pocket4 = body.newObject("PartDesign::Pocket", "Pocket003")
pocket4.Profile = sketch7
pocket4.setExpression("Length", "Params.pocket4_length")
pocket4.Reversed = True

doc.recompute()
